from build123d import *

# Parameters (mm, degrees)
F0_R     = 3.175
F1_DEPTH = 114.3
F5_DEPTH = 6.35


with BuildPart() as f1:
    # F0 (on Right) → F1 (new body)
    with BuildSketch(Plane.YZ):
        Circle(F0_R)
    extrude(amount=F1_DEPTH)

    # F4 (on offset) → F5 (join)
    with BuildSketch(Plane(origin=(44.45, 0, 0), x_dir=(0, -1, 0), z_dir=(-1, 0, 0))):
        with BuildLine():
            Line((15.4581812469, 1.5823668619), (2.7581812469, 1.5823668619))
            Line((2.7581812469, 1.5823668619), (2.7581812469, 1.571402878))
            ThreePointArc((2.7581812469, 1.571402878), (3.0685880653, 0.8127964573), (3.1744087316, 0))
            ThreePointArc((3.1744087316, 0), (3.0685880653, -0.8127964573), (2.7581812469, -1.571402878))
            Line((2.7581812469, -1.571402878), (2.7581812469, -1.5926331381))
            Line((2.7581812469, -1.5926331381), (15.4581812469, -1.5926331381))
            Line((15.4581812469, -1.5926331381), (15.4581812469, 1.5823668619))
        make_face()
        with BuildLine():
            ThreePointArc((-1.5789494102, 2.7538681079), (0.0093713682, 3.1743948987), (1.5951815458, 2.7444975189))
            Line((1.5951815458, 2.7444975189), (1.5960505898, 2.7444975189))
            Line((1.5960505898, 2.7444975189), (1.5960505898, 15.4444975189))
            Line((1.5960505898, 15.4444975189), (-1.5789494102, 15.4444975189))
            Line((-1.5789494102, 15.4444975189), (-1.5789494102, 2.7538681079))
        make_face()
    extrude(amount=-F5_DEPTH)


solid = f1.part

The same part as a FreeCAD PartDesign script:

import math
import FreeCAD as App
import Part
import Sketcher

V = App.Vector
Q = App.Units.Quantity

doc = App.newDocument("Part")
params = doc.addObject("Spreadsheet::Sheet", "Params")
for row, (alias, value) in enumerate([
    ("sketch1_diameter", "0.25 in"),
    ("pad1_length", "4.5 in"),
    ("sketch2_width", "0.5 in"),
    ("sketch2_width2", "0.125 in"),
    ("pad2_length", "0.25 in"),
], start=1):
    params.set(f"A{row}", alias)
    params.set(f"B{row}", "=" + value)
    params.setAlias(f"B{row}", alias)

body = doc.addObject("PartDesign::Body", "Body")

sketch1 = body.newObject("Sketcher::SketchObject", "Sketch")
sketch1.AttachmentSupport = (doc.getObject("YZ_Plane"), [""])
sketch1.MapMode = "FlatFace"
sketch1.addGeometry(Part.Circle(V(0, 0, 0), V(0, 0, 1), 3.2), False)
sketch1.addConstraint(Sketcher.Constraint("Coincident", 0, 3, -1, 1))
sketch1.addConstraint(Sketcher.Constraint("Diameter", 0, Q("0.25 in")))
sketch1.setExpression("Constraints[1]", "Params.sketch1_diameter")
pad1 = body.newObject("PartDesign::Pad", "Pad")
pad1.Profile = sketch1
pad1.setExpression("Length", "Params.pad1_length")

sketch2 = body.newObject("Sketcher::SketchObject", "Sketch001")
sketch2.AttachmentSupport = (doc.getObject("YZ_Plane"), [""])
sketch2.MapMode = "FlatFace"
sketch2.AttachmentOffset = App.Placement(V(0, 0, 1.75 * 25.4), App.Rotation())
sketch2.addGeometry(Part.LineSegment(V(-15.4582, 1.5824, 0), V(-2.7582, 1.5824, 0)), False)
sketch2.addGeometry(Part.LineSegment(V(-2.7582, 1.5824, 0), V(-2.7582, 1.5714, 0)), False)
sketch2.addGeometry(Part.ArcOfCircle(Part.Circle(V(0, 0, 0), V(0, 0, 1), 3.1744), math.radians(150), math.radians(180)), False)
sketch2.addGeometry(Part.ArcOfCircle(Part.Circle(V(0, 0, 0), V(0, 0, 1), 3.1744), math.radians(180), math.radians(210)), False)
sketch2.addGeometry(Part.LineSegment(V(-2.7582, -1.5714, 0), V(-2.7582, -1.5926, 0)), False)
sketch2.addGeometry(Part.LineSegment(V(-2.7582, -1.5926, 0), V(-15.4582, -1.5926, 0)), False)
sketch2.addGeometry(Part.LineSegment(V(-15.4582, -1.5926, 0), V(-15.4582, 1.5824, 0)), False)
sketch2.addGeometry(Part.ArcOfCircle(Part.Circle(V(0, 0, 0), V(0, 0, 1), 3.1744), math.radians(60), math.radians(120)), False)
sketch2.addGeometry(Part.LineSegment(V(-1.5952, 2.7445, 0), V(-1.5961, 2.7445, 0)), False)
sketch2.addGeometry(Part.LineSegment(V(-1.5961, 2.7445, 0), V(-1.5961, 15.4445, 0)), False)
sketch2.addGeometry(Part.LineSegment(V(-1.5961, 15.4445, 0), V(1.5789, 15.4445, 0)), False)
sketch2.addGeometry(Part.LineSegment(V(1.5789, 15.4445, 0), V(1.5789, 2.7539, 0)), False)
sketch2.addConstraint(Sketcher.Constraint("Coincident", 0, 2, 1, 1))
sketch2.addConstraint(Sketcher.Constraint("Coincident", 1, 2, 2, 1))
sketch2.addConstraint(Sketcher.Constraint("Tangent", 2, 2, 3, 1))
sketch2.addConstraint(Sketcher.Constraint("Coincident", 3, 2, 4, 1))
sketch2.addConstraint(Sketcher.Constraint("Coincident", 4, 2, 5, 1))
sketch2.addConstraint(Sketcher.Constraint("Coincident", 5, 2, 6, 1))
sketch2.addConstraint(Sketcher.Constraint("Coincident", 6, 2, 0, 1))
sketch2.addConstraint(Sketcher.Constraint("Coincident", 7, 2, 8, 1))
sketch2.addConstraint(Sketcher.Constraint("Coincident", 8, 2, 9, 1))
sketch2.addConstraint(Sketcher.Constraint("Coincident", 9, 2, 10, 1))
sketch2.addConstraint(Sketcher.Constraint("Coincident", 10, 2, 11, 1))
sketch2.addConstraint(Sketcher.Constraint("Coincident", 11, 2, 7, 1))
sketch2.addConstraint(Sketcher.Constraint("Horizontal", 0))
sketch2.addConstraint(Sketcher.Constraint("Vertical", 1))
sketch2.addConstraint(Sketcher.Constraint("Vertical", 4))
sketch2.addConstraint(Sketcher.Constraint("Horizontal", 5))
sketch2.addConstraint(Sketcher.Constraint("Vertical", 6))
sketch2.addConstraint(Sketcher.Constraint("Horizontal", 8))
sketch2.addConstraint(Sketcher.Constraint("Vertical", 9))
sketch2.addConstraint(Sketcher.Constraint("Horizontal", 10))
sketch2.addConstraint(Sketcher.Constraint("Vertical", 11))
sketch2.addConstraint(Sketcher.Constraint("Coincident", 2, 3, -1, 1))
sketch2.addConstraint(Sketcher.Constraint("Coincident", 7, 3, -1, 1))
sketch2.addConstraint(Sketcher.Constraint("Equal", 2, 3))
sketch2.addConstraint(Sketcher.Constraint("Equal", 3, 7))
sketch2.addConstraint(Sketcher.Constraint("PointOnObject", 2, 2, -1))
sketch2.addConstraint(Sketcher.Constraint("Vertical", 1, 2, 3, 2))
sketch2.addConstraint(Sketcher.Constraint("Equal", 10, 6))
sketch2.addConstraint(Sketcher.Constraint("Equal", 5, 9))
sketch2.addConstraint(Sketcher.Constraint("DistanceX", 0, 1, 0, 2, Q("0.5 in")))
sketch2.addConstraint(Sketcher.Constraint("DistanceX", 10, 1, 10, 2, Q("0.125 in")))
sketch2.addConstraint(Sketcher.Constraint("Radius", 2, 3.174409))
sketch2.addConstraint(Sketcher.Constraint("DistanceX", 8, 2, 8, 1, 0.000869))
sketch2.addConstraint(Sketcher.Constraint("DistanceY", 4, 2, 4, 1, 0.02123))
sketch2.addConstraint(Sketcher.Constraint("DistanceY", 11, 2, 11, 1, 12.690629))
sketch2.addConstraint(Sketcher.Constraint("DistanceX", 0, 2, 7, 2, 1.163))
sketch2.setExpression("Constraints[29]", "Params.sketch2_width")
sketch2.setExpression("Constraints[30]", "Params.sketch2_width2")
pad2 = body.newObject("PartDesign::Pad", "Pad001")
pad2.Profile = sketch2
pad2.setExpression("Length", "Params.pad2_length")

doc.recompute()
